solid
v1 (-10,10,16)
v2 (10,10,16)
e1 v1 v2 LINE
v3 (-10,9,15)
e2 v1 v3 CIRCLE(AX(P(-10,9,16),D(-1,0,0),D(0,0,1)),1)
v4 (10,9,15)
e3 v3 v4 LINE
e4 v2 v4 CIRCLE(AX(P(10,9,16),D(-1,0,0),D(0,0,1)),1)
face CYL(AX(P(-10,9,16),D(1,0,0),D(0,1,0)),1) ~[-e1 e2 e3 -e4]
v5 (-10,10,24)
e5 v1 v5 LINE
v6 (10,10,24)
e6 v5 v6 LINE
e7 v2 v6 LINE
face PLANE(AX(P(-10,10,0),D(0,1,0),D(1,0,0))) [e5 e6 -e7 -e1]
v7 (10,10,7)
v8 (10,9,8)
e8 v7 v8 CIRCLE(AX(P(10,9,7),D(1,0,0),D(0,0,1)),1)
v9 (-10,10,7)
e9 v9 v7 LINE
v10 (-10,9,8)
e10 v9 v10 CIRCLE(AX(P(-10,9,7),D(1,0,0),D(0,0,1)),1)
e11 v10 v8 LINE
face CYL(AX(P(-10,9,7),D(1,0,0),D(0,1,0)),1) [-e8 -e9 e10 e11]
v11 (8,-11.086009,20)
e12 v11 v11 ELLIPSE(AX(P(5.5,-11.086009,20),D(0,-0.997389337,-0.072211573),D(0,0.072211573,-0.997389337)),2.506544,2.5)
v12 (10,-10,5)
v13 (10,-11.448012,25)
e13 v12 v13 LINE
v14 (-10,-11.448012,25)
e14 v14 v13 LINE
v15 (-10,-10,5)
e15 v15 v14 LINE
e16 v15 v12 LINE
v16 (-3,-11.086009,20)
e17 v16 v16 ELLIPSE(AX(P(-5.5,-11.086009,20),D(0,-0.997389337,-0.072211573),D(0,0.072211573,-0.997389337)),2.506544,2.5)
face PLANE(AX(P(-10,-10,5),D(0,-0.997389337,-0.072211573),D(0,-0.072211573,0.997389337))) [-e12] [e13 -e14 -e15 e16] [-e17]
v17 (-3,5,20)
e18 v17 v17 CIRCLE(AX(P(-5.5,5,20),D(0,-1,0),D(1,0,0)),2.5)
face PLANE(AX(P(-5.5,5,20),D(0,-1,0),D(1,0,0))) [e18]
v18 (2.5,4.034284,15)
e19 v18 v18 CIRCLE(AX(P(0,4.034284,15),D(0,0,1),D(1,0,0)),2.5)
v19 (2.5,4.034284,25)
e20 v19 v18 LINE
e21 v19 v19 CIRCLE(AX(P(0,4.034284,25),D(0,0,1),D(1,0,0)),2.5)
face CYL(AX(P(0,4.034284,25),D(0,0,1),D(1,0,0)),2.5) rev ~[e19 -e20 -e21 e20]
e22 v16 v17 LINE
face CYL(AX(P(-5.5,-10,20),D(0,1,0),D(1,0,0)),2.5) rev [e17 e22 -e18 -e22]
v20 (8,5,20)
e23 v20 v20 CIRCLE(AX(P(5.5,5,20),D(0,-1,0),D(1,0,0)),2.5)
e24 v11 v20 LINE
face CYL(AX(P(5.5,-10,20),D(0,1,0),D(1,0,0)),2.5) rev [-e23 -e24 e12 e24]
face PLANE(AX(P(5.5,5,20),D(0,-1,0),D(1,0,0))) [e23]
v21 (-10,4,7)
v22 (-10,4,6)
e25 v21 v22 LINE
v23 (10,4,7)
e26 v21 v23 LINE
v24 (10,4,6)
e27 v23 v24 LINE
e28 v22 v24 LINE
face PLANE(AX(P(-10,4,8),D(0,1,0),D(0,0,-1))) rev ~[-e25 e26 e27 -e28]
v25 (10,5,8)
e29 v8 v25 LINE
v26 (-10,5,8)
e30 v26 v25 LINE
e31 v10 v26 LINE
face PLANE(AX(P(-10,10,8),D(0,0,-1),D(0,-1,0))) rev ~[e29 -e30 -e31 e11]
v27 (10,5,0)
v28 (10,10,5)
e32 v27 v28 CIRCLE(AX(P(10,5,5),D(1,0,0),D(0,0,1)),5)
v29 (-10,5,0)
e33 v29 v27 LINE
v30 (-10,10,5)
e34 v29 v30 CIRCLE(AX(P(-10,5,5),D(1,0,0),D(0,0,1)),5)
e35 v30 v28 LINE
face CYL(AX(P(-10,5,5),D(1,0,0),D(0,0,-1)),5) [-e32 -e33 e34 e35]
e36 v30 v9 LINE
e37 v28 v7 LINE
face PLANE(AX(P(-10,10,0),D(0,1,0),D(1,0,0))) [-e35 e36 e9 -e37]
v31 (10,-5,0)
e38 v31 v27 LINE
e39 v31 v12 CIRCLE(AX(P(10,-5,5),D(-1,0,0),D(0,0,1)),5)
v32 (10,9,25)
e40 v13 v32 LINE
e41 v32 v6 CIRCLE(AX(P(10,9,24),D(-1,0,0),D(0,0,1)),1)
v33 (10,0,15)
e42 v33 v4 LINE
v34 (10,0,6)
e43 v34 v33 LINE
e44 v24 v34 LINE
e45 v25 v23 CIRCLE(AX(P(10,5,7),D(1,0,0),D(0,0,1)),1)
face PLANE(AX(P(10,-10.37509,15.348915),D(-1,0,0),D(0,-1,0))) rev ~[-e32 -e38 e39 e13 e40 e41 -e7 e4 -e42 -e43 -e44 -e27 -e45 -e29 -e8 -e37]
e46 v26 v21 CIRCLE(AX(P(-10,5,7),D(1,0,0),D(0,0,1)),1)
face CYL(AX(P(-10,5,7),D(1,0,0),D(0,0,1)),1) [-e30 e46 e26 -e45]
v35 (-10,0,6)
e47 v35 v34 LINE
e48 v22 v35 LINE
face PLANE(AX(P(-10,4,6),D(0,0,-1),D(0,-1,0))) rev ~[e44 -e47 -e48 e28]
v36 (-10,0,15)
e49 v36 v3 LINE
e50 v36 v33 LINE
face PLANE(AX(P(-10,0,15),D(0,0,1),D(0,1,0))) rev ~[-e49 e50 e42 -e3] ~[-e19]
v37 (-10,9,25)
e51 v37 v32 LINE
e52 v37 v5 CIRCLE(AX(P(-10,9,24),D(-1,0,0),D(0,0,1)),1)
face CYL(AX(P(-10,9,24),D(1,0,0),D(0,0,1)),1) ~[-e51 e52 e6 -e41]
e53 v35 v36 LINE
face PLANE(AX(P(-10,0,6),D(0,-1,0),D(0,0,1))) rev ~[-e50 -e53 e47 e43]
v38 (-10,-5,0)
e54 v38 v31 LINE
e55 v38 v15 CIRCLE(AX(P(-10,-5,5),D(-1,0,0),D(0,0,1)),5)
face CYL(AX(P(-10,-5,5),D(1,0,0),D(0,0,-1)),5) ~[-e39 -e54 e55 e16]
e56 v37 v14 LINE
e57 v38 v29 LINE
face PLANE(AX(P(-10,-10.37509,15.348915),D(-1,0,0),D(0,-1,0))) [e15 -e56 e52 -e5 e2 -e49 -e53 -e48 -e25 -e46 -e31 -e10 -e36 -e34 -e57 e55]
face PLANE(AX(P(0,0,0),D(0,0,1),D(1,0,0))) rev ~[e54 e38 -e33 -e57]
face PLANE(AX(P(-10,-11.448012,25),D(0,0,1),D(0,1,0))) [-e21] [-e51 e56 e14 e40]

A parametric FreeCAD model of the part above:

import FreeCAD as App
import Part
import Sketcher


def edges_at(feature, points):
    """Names of the edges that pass closest to the given points."""
    edges = feature.Shape.Edges
    near = lambda p: min(range(len(edges)), key=lambda i: edges[i].distToShape(Part.Vertex(*p))[0])
    return sorted({f"Edge{near(p) + 1}" for p in points})


def add_polygon(sketch, points):
    """Adds a closed chain of lines whose ends are joined by coincident constraints."""
    first, n = sketch.GeometryCount, len(points)
    for a, b in zip(points, points[1:] + points[:1]):
        sketch.addGeometry(Part.LineSegment(App.Vector(*a, 0), App.Vector(*b, 0)), False)
    for i in range(n):
        sketch.addConstraint(Sketcher.Constraint("Coincident", first + i, 2, first + (i + 1) % n, 1))

doc = App.newDocument("Part")
body = doc.addObject("PartDesign::Body", "Body")

# Sketch on XY plane
sketch1 = body.newObject("Sketcher::SketchObject", "Sketch")
sketch1.AttachmentSupport = (doc.getObject("XY_Plane"), [""])
sketch1.MapMode = "FlatFace"
add_polygon(sketch1, [(-10, 10), (-10, -10), (10, -10), (10, 10)])  # lines 0-3
sketch1.addConstraint(Sketcher.Constraint("Vertical", 0))
sketch1.addConstraint(Sketcher.Constraint("Horizontal", 1))
sketch1.addConstraint(Sketcher.Constraint("Vertical", 2))
sketch1.addConstraint(Sketcher.Constraint("Horizontal", 3))
sketch1.addConstraint(Sketcher.Constraint("Symmetric", 0, 2, 2, 2, -1, 1))
sketch1.addConstraint(Sketcher.Constraint("Equal", 3, 0))
sketch1.addConstraint(Sketcher.Constraint("DistanceX", 1, 1, 1, 2, 20.0))
pad1 = body.newObject("PartDesign::Pad", "Pad")
pad1.Profile = sketch1
pad1.Length = 25

# Sketch on YZ plane
sketch2 = body.newObject("Sketcher::SketchObject", "Sketch001")
sketch2.AttachmentSupport = (doc.getObject("YZ_Plane"), [""])
sketch2.MapMode = "FlatFace"
sketch2.AttachmentOffset = App.Placement(App.Vector(0, 0, -10), App.Rotation())
add_polygon(sketch2, [(0, 15), (10, 15), (10, 8), (4, 8), (4, 6), (0, 6)])  # lines 0-5
sketch2.addConstraint(Sketcher.Constraint("Horizontal", 0))
sketch2.addConstraint(Sketcher.Constraint("Vertical", 1))
sketch2.addConstraint(Sketcher.Constraint("Horizontal", 2))
sketch2.addConstraint(Sketcher.Constraint("Vertical", 3))
sketch2.addConstraint(Sketcher.Constraint("Horizontal", 4))
sketch2.addConstraint(Sketcher.Constraint("Vertical", 5))
sketch2.addConstraint(Sketcher.Constraint("PointOnObject", 4, 2, -2))
sketch2.addConstraint(Sketcher.Constraint("DistanceX", 0, 1, 0, 2, 10.0))
sketch2.addConstraint(Sketcher.Constraint("DistanceX", 2, 2, 2, 1, 6.0))
sketch2.addConstraint(Sketcher.Constraint("DistanceY", 1, 2, 1, 1, 7.0))
sketch2.addConstraint(Sketcher.Constraint("DistanceY", 3, 2, 3, 1, 2.0))
sketch2.addConstraint(Sketcher.Constraint("DistanceY", -1, 1, 0, 2, 15.0))
pocket1 = body.newObject("PartDesign::Pocket", "Pocket")
pocket1.Profile = sketch2
pocket1.Length = 25
pocket1.Reversed = True

# Sketch on XY plane
sketch3 = body.newObject("Sketcher::SketchObject", "Sketch002")
sketch3.AttachmentSupport = (doc.getObject("XY_Plane"), [""])
sketch3.MapMode = "FlatFace"
sketch3.AttachmentOffset = App.Placement(App.Vector(0, 0, 25), App.Rotation())
sketch3.addGeometry(Part.Circle(App.Vector(0, 4, 0), App.Vector(0, 0, 1), 2.5), False)
sketch3.addConstraint(Sketcher.Constraint("PointOnObject", 0, 3, -2))
sketch3.addConstraint(Sketcher.Constraint("Diameter", 0, 5.0))
sketch3.addConstraint(Sketcher.Constraint("DistanceY", -1, 1, 0, 3, 4.034284))
pocket2 = body.newObject("PartDesign::Pocket", "Pocket001")
pocket2.Profile = sketch3
pocket2.Length = 10
doc.recompute()

fillet = body.newObject("PartDesign::Fillet", "Fillet")
fillet.Base = (pocket2, edges_at(pocket2, [(0, 10, 0), (0, -10, 0)]))
fillet.Radius = 5
doc.recompute()

fillet2 = body.newObject("PartDesign::Fillet", "Fillet001")
fillet2.Base = (fillet, edges_at(fillet, [
    (0, 10, 15),
    (0, 10, 8),
    (0, 10, 25),
    (0, 4, 8),
]))
fillet2.Radius = 1

# Sketch on YZ plane
sketch4 = body.newObject("Sketcher::SketchObject", "Sketch003")
sketch4.AttachmentSupport = (doc.getObject("YZ_Plane"), [""])
sketch4.MapMode = "FlatFace"
sketch4.AttachmentOffset = App.Placement(App.Vector(0, 0, -10), App.Rotation())
add_polygon(sketch4, [(-11.4, 25), (-10, 25), (-10, 5)])  # lines 0-2
sketch4.addConstraint(Sketcher.Constraint("Horizontal", 0))
sketch4.addConstraint(Sketcher.Constraint("Vertical", 1))
sketch4.addConstraint(Sketcher.Constraint("DistanceY", 1, 2, 1, 1, 20.0))
sketch4.addConstraint(Sketcher.Constraint("DistanceX", 0, 2, -1, 1, 10.0))
sketch4.addConstraint(Sketcher.Constraint("DistanceY", -1, 1, 0, 2, 25.0))
sketch4.addConstraint(Sketcher.Constraint("DistanceX", 0, 1, 0, 2, 1.448012))
pad2 = body.newObject("PartDesign::Pad", "Pad001")
pad2.Profile = sketch4
pad2.Length = 20

# Sketch on XZ plane
sketch5 = body.newObject("Sketcher::SketchObject", "Sketch004")
sketch5.AttachmentSupport = (doc.getObject("XZ_Plane"), [""])
sketch5.MapMode = "FlatFace"
sketch5.AttachmentOffset = App.Placement(App.Vector(0, 0, 10), App.Rotation())
sketch5.addGeometry(Part.Circle(App.Vector(-5.5, 20, 0), App.Vector(0, 0, 1), 2.5), False)
sketch5.addGeometry(Part.Circle(App.Vector(5.5, 20, 0), App.Vector(0, 0, 1), 2.5), False)
sketch5.addConstraint(Sketcher.Constraint("Equal", 0, 1))
sketch5.addConstraint(Sketcher.Constraint("Symmetric", 0, 3, 1, 3, -2))
sketch5.addConstraint(Sketcher.Constraint("Diameter", 0, 5.0))
sketch5.addConstraint(Sketcher.Constraint("DistanceY", -1, 1, 0, 3, 20.0))
sketch5.addConstraint(Sketcher.Constraint("DistanceX", 0, 3, 1, 3, 11.0))
pocket3 = body.newObject("PartDesign::Pocket", "Pocket002")
pocket3.Profile = sketch5
pocket3.Type = "TwoLengths"
pocket3.Length = 15
pocket3.Length2 = 25

doc.recompute()
